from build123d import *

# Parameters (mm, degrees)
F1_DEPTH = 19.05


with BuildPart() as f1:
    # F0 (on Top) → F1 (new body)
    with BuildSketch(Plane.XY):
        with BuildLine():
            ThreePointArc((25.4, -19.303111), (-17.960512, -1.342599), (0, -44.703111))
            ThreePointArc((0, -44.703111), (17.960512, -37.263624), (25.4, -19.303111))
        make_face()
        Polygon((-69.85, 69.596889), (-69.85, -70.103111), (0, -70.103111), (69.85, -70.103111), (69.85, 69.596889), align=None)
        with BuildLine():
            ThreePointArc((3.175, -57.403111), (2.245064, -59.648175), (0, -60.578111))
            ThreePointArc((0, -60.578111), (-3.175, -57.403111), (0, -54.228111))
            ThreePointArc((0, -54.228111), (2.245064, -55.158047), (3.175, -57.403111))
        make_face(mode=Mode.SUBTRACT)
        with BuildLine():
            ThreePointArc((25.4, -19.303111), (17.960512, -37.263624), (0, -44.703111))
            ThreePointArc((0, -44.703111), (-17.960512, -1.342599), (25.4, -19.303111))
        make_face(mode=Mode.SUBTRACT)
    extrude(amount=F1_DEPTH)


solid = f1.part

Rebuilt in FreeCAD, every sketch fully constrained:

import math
import FreeCAD as App
import Part
import Sketcher
Q = App.Units.Quantity

doc = App.newDocument("Part")
body = doc.addObject("PartDesign::Body", "Body")

sketch1 = doc.addObject("Sketcher::SketchObject", "Sketch")
body.addObject(sketch1)
sketch1.AttachmentSupport = (doc.XY_Plane, [""])
sketch1.MapMode = "FlatFace"
sketch1.addGeometry(Part.LineSegment(App.Vector(-69.8, 69.6, 0), App.Vector(-69.8, -70.1, 0)), False)
sketch1.addGeometry(Part.LineSegment(App.Vector(-69.8, -70.1, 0), App.Vector(69.8, -70.1, 0)), False)
sketch1.addGeometry(Part.LineSegment(App.Vector(69.8, -70.1, 0), App.Vector(69.8, 69.6, 0)), False)
sketch1.addGeometry(Part.LineSegment(App.Vector(69.8, 69.6, 0), App.Vector(-69.8, 69.6, 0)), False)
sketch1.addGeometry(Part.ArcOfCircle(Part.Circle(App.Vector(0, -57.4, 0), App.Vector(0, 0, 1), 3.2), math.radians(0), math.radians(90)), False)
sketch1.addGeometry(Part.ArcOfCircle(Part.Circle(App.Vector(0, -57.4, 0), App.Vector(0, 0, 1), 3.2), math.radians(-90), math.radians(0)), False)
sketch1.addGeometry(Part.ArcOfCircle(Part.Circle(App.Vector(0, -57.4, 0), App.Vector(0, 0, 1), 3.2), math.radians(90), math.radians(270)), False)
sketch1.addGeometry(Part.ArcOfCircle(Part.Circle(App.Vector(0, -19.3, 0), App.Vector(0, 0, 1), 25.4), math.radians(0), math.radians(270)), False)
sketch1.addGeometry(Part.ArcOfCircle(Part.Circle(App.Vector(0, -19.3, 0), App.Vector(0, 0, 1), 25.4), math.radians(-90), math.radians(0)), False)
sketch1.addConstraint(Sketcher.Constraint("Coincident", 0, 2, 1, 1))
sketch1.addConstraint(Sketcher.Constraint("Coincident", 1, 2, 2, 1))
sketch1.addConstraint(Sketcher.Constraint("Coincident", 2, 2, 3, 1))
sketch1.addConstraint(Sketcher.Constraint("Coincident", 3, 2, 0, 1))
sketch1.addConstraint(Sketcher.Constraint("Tangent", 4, 1, 5, 2))
sketch1.addConstraint(Sketcher.Constraint("Tangent", 5, 1, 6, 2))
sketch1.addConstraint(Sketcher.Constraint("Tangent", 6, 1, 4, 2))
sketch1.addConstraint(Sketcher.Constraint("Tangent", 7, 1, 8, 2))
sketch1.addConstraint(Sketcher.Constraint("Coincident", 8, 1, 7, 2))
sketch1.addConstraint(Sketcher.Constraint("Vertical", 0))
sketch1.addConstraint(Sketcher.Constraint("Horizontal", 1))
sketch1.addConstraint(Sketcher.Constraint("Vertical", 2))
sketch1.addConstraint(Sketcher.Constraint("Horizontal", 3))
sketch1.addConstraint(Sketcher.Constraint("PointOnObject", 4, 3, -2))
sketch1.addConstraint(Sketcher.Constraint("PointOnObject", 7, 3, -2))
sketch1.addConstraint(Sketcher.Constraint("PointOnObject", 5, 1, -2))
sketch1.addConstraint(Sketcher.Constraint("PointOnObject", 6, 1, -2))
sketch1.addConstraint(Sketcher.Constraint("PointOnObject", 8, 1, -2))
sketch1.addConstraint(Sketcher.Constraint("Horizontal", 6, 3, 4, 1))
sketch1.addConstraint(Sketcher.Constraint("Horizontal", 8, 3, 7, 1))
sketch1.addConstraint(Sketcher.Constraint("Equal", 3, 0))
sketch1.addConstraint(Sketcher.Constraint("Radius", 7, Q("1 in")))
sketch1.addConstraint(Sketcher.Constraint("DistanceX", 1, 1, 1, 2, Q("5.5 in")))
sketch1.addConstraint(Sketcher.Constraint("Radius", 4, Q("0.125 in")))
sketch1.addConstraint(Sketcher.Constraint("DistanceY", 0, 2, 7, 3, Q("2 in")))
sketch1.addConstraint(Sketcher.Constraint("DistanceY", 5, 3, 2, 2, Q("5 in")))
sketch1.addConstraint(Sketcher.Constraint("DistanceX", 0, 2, -1, 1, Q("2.75 in")))
sketch1.addConstraint(Sketcher.Constraint("DistanceY", 4, 3, -1, 1, 57.403111))
pad1 = doc.addObject("PartDesign::Pad", "Pad")
body.addObject(pad1)
pad1.Profile = sketch1
pad1.Length = Q("0.75 in")

doc.recompute()
